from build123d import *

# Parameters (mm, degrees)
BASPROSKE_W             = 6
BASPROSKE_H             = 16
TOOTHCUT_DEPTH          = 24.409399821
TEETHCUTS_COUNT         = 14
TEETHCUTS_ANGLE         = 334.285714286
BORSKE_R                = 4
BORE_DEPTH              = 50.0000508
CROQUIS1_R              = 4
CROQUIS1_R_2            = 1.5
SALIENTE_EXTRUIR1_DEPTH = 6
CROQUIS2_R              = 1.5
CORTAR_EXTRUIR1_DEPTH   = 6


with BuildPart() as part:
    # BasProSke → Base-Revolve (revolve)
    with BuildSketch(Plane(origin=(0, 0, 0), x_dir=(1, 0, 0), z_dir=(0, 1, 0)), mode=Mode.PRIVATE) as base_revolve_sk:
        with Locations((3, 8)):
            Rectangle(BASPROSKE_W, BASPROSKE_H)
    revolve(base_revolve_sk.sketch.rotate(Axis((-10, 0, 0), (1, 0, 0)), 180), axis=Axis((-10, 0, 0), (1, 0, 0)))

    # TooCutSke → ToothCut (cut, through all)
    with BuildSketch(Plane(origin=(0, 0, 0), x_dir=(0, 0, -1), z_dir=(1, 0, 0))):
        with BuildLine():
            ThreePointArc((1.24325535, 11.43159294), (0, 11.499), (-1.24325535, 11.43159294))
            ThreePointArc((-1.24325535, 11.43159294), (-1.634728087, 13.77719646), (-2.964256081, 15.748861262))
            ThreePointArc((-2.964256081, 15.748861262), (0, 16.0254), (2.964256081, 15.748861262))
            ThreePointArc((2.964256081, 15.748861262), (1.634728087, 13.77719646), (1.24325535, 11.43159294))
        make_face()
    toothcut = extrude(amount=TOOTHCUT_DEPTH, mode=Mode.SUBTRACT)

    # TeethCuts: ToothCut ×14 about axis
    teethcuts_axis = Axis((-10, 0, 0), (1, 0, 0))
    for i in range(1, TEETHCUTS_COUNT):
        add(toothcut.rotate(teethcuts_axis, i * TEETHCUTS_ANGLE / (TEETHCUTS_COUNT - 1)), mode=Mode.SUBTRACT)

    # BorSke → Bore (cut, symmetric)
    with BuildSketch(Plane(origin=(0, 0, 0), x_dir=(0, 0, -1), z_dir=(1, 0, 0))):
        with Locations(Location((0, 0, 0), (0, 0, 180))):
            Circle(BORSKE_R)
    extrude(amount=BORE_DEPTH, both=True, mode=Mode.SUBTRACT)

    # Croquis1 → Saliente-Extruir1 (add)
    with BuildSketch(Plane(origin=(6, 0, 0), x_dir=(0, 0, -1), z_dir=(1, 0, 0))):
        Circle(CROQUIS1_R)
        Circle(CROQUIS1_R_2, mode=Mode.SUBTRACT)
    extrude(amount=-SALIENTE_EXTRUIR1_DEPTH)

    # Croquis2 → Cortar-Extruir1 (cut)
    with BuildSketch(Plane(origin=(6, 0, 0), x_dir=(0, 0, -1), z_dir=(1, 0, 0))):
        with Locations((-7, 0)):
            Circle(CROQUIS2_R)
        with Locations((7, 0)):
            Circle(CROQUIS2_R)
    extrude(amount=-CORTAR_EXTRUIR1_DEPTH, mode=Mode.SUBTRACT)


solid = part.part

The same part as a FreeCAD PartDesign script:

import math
import FreeCAD as App
import Part
import Sketcher
Q = App.Units.Quantity


def add_polygon(sketch, points):
    """Adds a closed chain of lines whose ends are joined by coincident constraints."""
    first, n = sketch.GeometryCount, len(points)
    for a, b in zip(points, points[1:] + points[:1]):
        sketch.addGeometry(Part.LineSegment(App.Vector(*a, 0), App.Vector(*b, 0)), False)
    for i in range(n):
        sketch.addConstraint(Sketcher.Constraint("Coincident", first + i, 2, first + (i + 1) % n, 1))

doc = App.newDocument("Part")
body = doc.addObject("PartDesign::Body", "Body")

# Sketch on XZ plane
sketch1 = body.newObject("Sketcher::SketchObject", "Sketch")
sketch1.AttachmentSupport = (doc.getObject("XZ_Plane"), [""])
sketch1.MapMode = "FlatFace"
add_polygon(sketch1, [(0, -16), (0, 0), (6, 0), (6, -16)])  # lines 0-3
sketch1.addConstraint([
    Sketcher.Constraint("Vertical", 0),
    Sketcher.Constraint("Horizontal", 1),
    Sketcher.Constraint("Vertical", 2),
    Sketcher.Constraint("Horizontal", 3),
    Sketcher.Constraint("Coincident", 0, 2, -1, 1),
    Sketcher.Constraint("DistanceX", 1, 1, 1, 2, Q("6 mm")),
    Sketcher.Constraint("DistanceY", 0, 1, 0, 2, Q("16 mm")),
])
revolution = body.newObject("PartDesign::Revolution", "Revolution")
revolution.Profile = sketch1
revolution.ReferenceAxis = (sketch1, ["H_Axis"])
revolution.Angle = 360

# Sketch on YZ plane
sketch2 = body.newObject("Sketcher::SketchObject", "Sketch001")
sketch2.AttachmentSupport = (doc.getObject("YZ_Plane"), [""])
sketch2.MapMode = "FlatFace"
sketch2.addGeometry([
    Part.ArcOfCircle(Part.Circle(App.Vector(0, 0, 0), App.Vector(0, 0, 1), 11.5), math.radians(-6.21), math.radians(6.21)),
    Part.ArcOfCircle(Part.Circle(App.Vector(11.7, -6.8, 0), App.Vector(0, 0, 1), 5.6), math.radians(44), math.radians(93)),
    Part.ArcOfCircle(Part.Circle(App.Vector(0, 0, 0), App.Vector(0, 0, 1), 16), math.radians(-11), math.radians(11)),
    Part.ArcOfCircle(Part.Circle(App.Vector(11.7, 6.8, 0), App.Vector(0, 0, 1), 5.6), math.radians(-93), math.radians(-44)),
], False)
sketch2.addConstraint([
    Sketcher.Constraint("Coincident", 0, 1, 1, 2),
    Sketcher.Constraint("Coincident", 1, 1, 2, 1),
    Sketcher.Constraint("Coincident", 2, 2, 3, 2),
    Sketcher.Constraint("Coincident", 3, 1, 0, 2),
    Sketcher.Constraint("Coincident", 0, 3, -1, 1),
    Sketcher.Constraint("Coincident", 2, 3, -1, 1),
    Sketcher.Constraint("Equal", 1, 3),
    Sketcher.Constraint("Symmetric", 1, 3, 3, 3, -1),
    Sketcher.Constraint("Radius", 1, Q("5.6 mm")),
    Sketcher.Constraint("Radius", 0, Q("11.499 mm")),
    Sketcher.Constraint("Radius", 2, Q("16.0254 mm")),
    Sketcher.Constraint("DistanceY", 1, 1, 0, 1, Q("1.721001 mm")),
    Sketcher.Constraint("DistanceY", 1, 3, -1, 1, Q("6.836648 mm")),
])
pocket1 = body.newObject("PartDesign::Pocket", "Pocket")
pocket1.Profile = sketch2
pocket1.Type = "ThroughAll"
pocket1.Reversed = True
doc.recompute()

polarpattern = body.newObject("PartDesign::PolarPattern", "PolarPattern")
polarpattern.Originals = [pocket1]
polarpattern.Axis = (doc.getObject("X_Axis"), [""])
polarpattern.Angle = 360
polarpattern.Occurrences = 14
body.Tip = polarpattern

# Sketch on YZ plane
sketch3 = body.newObject("Sketcher::SketchObject", "Sketch002")
sketch3.AttachmentSupport = (doc.getObject("YZ_Plane"), [""])
sketch3.MapMode = "FlatFace"
sketch3.addGeometry(Part.Circle(App.Vector(0, 0, 0), App.Vector(0, 0, 1), 4), False)
sketch3.addConstraint([
    Sketcher.Constraint("Coincident", 0, 3, -1, 1),
    Sketcher.Constraint("Diameter", 0, Q("8 mm")),
])
pocket2 = body.newObject("PartDesign::Pocket", "Pocket001")
pocket2.Profile = sketch3
pocket2.Length = 100.000102
pocket2.Midplane = True

# Sketch on YZ plane
sketch4 = body.newObject("Sketcher::SketchObject", "Sketch003")
sketch4.AttachmentSupport = (doc.getObject("YZ_Plane"), [""])
sketch4.MapMode = "FlatFace"
sketch4.AttachmentOffset = App.Placement(App.Vector(0, 0, 6), App.Rotation())
sketch4.addGeometry([
    Part.Circle(App.Vector(0, 0, 0), App.Vector(0, 0, 1), 4),
    Part.Circle(App.Vector(0, 0, 0), App.Vector(0, 0, 1), 1.5),
], False)
sketch4.addConstraint([
    Sketcher.Constraint("Coincident", 0, 3, -1, 1),
    Sketcher.Constraint("Coincident", 1, 3, -1, 1),
    Sketcher.Constraint("Diameter", 0, Q("8 mm")),
    Sketcher.Constraint("Diameter", 1, Q("3 mm")),
])
pad1 = body.newObject("PartDesign::Pad", "Pad")
pad1.Profile = sketch4
pad1.Length = 6
pad1.Reversed = True

# Sketch on YZ plane
sketch5 = body.newObject("Sketcher::SketchObject", "Sketch004")
sketch5.AttachmentSupport = (doc.getObject("YZ_Plane"), [""])
sketch5.MapMode = "FlatFace"
sketch5.AttachmentOffset = App.Placement(App.Vector(0, 0, 6), App.Rotation())
sketch5.addGeometry([
    Part.Circle(App.Vector(0, 7, 0), App.Vector(0, 0, 1), 1.5),
    Part.Circle(App.Vector(0, -7, 0), App.Vector(0, 0, 1), 1.5),
], False)
sketch5.addConstraint([
    Sketcher.Constraint("Equal", 0, 1),
    Sketcher.Constraint("Symmetric", 0, 3, 1, 3, -1, 1),
    Sketcher.Constraint("PointOnObject", 0, 3, -2),
    Sketcher.Constraint("Diameter", 0, Q("3 mm")),
    Sketcher.Constraint("DistanceY", -1, 1, 0, 3, Q("7 mm")),
])
pocket3 = body.newObject("PartDesign::Pocket", "Pocket002")
pocket3.Profile = sketch5
pocket3.Length = 6

doc.recompute()
